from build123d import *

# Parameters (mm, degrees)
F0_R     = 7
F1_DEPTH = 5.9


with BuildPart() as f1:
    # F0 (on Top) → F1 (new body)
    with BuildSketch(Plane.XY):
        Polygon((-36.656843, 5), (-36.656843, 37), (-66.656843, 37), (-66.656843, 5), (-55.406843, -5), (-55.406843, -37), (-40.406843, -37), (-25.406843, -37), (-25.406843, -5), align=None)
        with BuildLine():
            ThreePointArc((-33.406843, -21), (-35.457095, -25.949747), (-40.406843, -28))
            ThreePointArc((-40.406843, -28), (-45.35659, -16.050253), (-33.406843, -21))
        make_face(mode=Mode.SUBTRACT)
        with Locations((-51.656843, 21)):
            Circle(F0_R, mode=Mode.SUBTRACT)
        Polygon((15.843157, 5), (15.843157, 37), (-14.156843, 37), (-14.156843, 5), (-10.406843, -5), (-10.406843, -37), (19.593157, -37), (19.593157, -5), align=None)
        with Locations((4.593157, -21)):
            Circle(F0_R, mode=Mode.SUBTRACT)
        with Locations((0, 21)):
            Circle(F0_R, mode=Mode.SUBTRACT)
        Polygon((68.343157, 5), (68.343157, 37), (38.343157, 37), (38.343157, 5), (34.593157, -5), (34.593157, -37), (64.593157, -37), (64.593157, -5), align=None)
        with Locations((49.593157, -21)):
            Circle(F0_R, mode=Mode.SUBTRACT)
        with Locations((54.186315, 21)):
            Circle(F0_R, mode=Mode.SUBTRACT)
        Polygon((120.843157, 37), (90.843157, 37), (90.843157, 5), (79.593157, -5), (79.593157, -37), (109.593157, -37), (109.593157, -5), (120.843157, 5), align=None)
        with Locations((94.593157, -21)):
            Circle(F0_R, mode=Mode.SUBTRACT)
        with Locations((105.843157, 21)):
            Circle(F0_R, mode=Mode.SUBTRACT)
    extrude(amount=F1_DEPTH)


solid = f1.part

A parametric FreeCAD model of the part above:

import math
import FreeCAD as App
import Part
import Sketcher
from FreeCAD import Vector
Q = App.Units.Quantity


def add_polygon(sketch, points):
    """Adds a closed chain of lines whose ends are joined by coincident constraints."""
    first, n = sketch.GeometryCount, len(points)
    for a, b in zip(points, points[1:] + points[:1]):
        sketch.addGeometry(Part.LineSegment(App.Vector(*a, 0), App.Vector(*b, 0)), False)
    for i in range(n):
        sketch.addConstraint(Sketcher.Constraint("Coincident", first + i, 2, first + (i + 1) % n, 1))

doc = App.newDocument("Part")
body = doc.addObject("PartDesign::Body", "Body")
body.AllowCompound = True

# Sketch on XY plane
sketch1 = body.newObject("Sketcher::SketchObject", "Sketch")
sketch1.AttachmentSupport = (doc.getObject("XY_Plane"), [""])
sketch1.MapMode = "FlatFace"
add_polygon(sketch1, [(-37, 5), (-37, 37), (-67, 37), (-67, 5), (-55, -5), (-55, -37), (-25, -37), (-25, -5)])  # lines 0-7
sketch1.addGeometry(Part.ArcOfCircle(Part.Circle(Vector(-40, -21, 0), Vector(0, 0, 1), 7), math.radians(0), math.radians(270)), False)  # 8
sketch1.addGeometry(Part.ArcOfCircle(Part.Circle(Vector(-40, -21, 0), Vector(0, 0, 1), 7), math.radians(-90), math.radians(0)), False)  # 9
sketch1.addGeometry(Part.Circle(Vector(-52, 21, 0), Vector(0, 0, 1), 7), False)  # 10
add_polygon(sketch1, [(16, 5), (16, 37), (-14, 37), (-14, 5), (-10, -5), (-10, -37), (20, -37), (20, -5)])  # lines 11-18
sketch1.addGeometry(Part.Circle(Vector(5, -21, 0), Vector(0, 0, 1), 7), False)  # 19
sketch1.addGeometry(Part.Circle(Vector(0, 21, 0), Vector(0, 0, 1), 7), False)  # 20
add_polygon(sketch1, [(68, 5), (68, 37), (38, 37), (38, 5), (35, -5), (35, -37), (65, -37), (65, -5)])  # lines 21-28
sketch1.addGeometry(Part.Circle(Vector(50, -21, 0), Vector(0, 0, 1), 7), False)  # 29
sketch1.addGeometry(Part.Circle(Vector(54, 21, 0), Vector(0, 0, 1), 7), False)  # 30
add_polygon(sketch1, [(121, 37), (91, 37), (91, 5), (80, -5), (80, -37), (110, -37), (110, -5), (121, 5)])  # lines 31-38
sketch1.addGeometry(Part.Circle(Vector(95, -21, 0), Vector(0, 0, 1), 7), False)  # 39
sketch1.addGeometry(Part.Circle(Vector(106, 21, 0), Vector(0, 0, 1), 7), False)  # 40
sketch1.addConstraint(Sketcher.Constraint("Tangent", 8, 1, 9, 2))
sketch1.addConstraint(Sketcher.Constraint("Coincident", 9, 1, 8, 2))
sketch1.addConstraint(Sketcher.Constraint("Vertical", 0))
sketch1.addConstraint(Sketcher.Constraint("Horizontal", 1))
sketch1.addConstraint(Sketcher.Constraint("Vertical", 2))
sketch1.addConstraint(Sketcher.Constraint("Vertical", 4))
sketch1.addConstraint(Sketcher.Constraint("Horizontal", 5))
sketch1.addConstraint(Sketcher.Constraint("Vertical", 6))
sketch1.addConstraint(Sketcher.Constraint("Vertical", 11))
sketch1.addConstraint(Sketcher.Constraint("Horizontal", 12))
sketch1.addConstraint(Sketcher.Constraint("Vertical", 13))
sketch1.addConstraint(Sketcher.Constraint("Vertical", 15))
sketch1.addConstraint(Sketcher.Constraint("Horizontal", 16))
sketch1.addConstraint(Sketcher.Constraint("Vertical", 17))
sketch1.addConstraint(Sketcher.Constraint("Vertical", 21))
sketch1.addConstraint(Sketcher.Constraint("Horizontal", 22))
sketch1.addConstraint(Sketcher.Constraint("Vertical", 23))
sketch1.addConstraint(Sketcher.Constraint("Vertical", 25))
sketch1.addConstraint(Sketcher.Constraint("Horizontal", 26))
sketch1.addConstraint(Sketcher.Constraint("Vertical", 27))
sketch1.addConstraint(Sketcher.Constraint("Horizontal", 31))
sketch1.addConstraint(Sketcher.Constraint("Vertical", 32))
sketch1.addConstraint(Sketcher.Constraint("Vertical", 34))
sketch1.addConstraint(Sketcher.Constraint("Horizontal", 35))
sketch1.addConstraint(Sketcher.Constraint("Vertical", 36))
sketch1.addConstraint(Sketcher.Constraint("Vertical", 38))
sketch1.addConstraint(Sketcher.Constraint("Equal", 9, 10))
sketch1.addConstraint(Sketcher.Constraint("Equal", 10, 19))
sketch1.addConstraint(Sketcher.Constraint("Equal", 19, 20))
sketch1.addConstraint(Sketcher.Constraint("Equal", 20, 29))
sketch1.addConstraint(Sketcher.Constraint("Equal", 29, 30))
sketch1.addConstraint(Sketcher.Constraint("Equal", 30, 39))
sketch1.addConstraint(Sketcher.Constraint("Equal", 39, 40))
sketch1.addConstraint(Sketcher.Constraint("PointOnObject", 20, 3, -2))
sketch1.addConstraint(Sketcher.Constraint("Parallel", 3, 7))
sketch1.addConstraint(Sketcher.Constraint("Parallel", 14, 18))
sketch1.addConstraint(Sketcher.Constraint("Parallel", 24, 28))
sketch1.addConstraint(Sketcher.Constraint("Parallel", 33, 37))
sketch1.addConstraint(Sketcher.Constraint("Horizontal", 9, 3, 19, 3))
sketch1.addConstraint(Sketcher.Constraint("Horizontal", 10, 3, 20, 3))
sketch1.addConstraint(Sketcher.Constraint("Horizontal", 19, 3, 29, 3))
sketch1.addConstraint(Sketcher.Constraint("Horizontal", 20, 3, 30, 3))
sketch1.addConstraint(Sketcher.Constraint("Horizontal", 29, 3, 39, 3))
sketch1.addConstraint(Sketcher.Constraint("Horizontal", 30, 3, 40, 3))
sketch1.addConstraint(Sketcher.Constraint("Horizontal", 3, 2, 6, 2))
sketch1.addConstraint(Sketcher.Constraint("Horizontal", 2, 2, 7, 2))
sketch1.addConstraint(Sketcher.Constraint("Horizontal", 39, 3, 8, 1))
sketch1.addConstraint(Sketcher.Constraint("Horizontal", 1, 2, 11, 2))
sketch1.addConstraint(Sketcher.Constraint("Horizontal", 7, 2, 13, 2))
sketch1.addConstraint(Sketcher.Constraint("Horizontal", 6, 2, 14, 2))
sketch1.addConstraint(Sketcher.Constraint("Horizontal", 5, 2, 15, 2))
sketch1.addConstraint(Sketcher.Constraint("Horizontal", 14, 2, 17, 2))
sketch1.addConstraint(Sketcher.Constraint("Horizontal", 13, 2, 18, 2))
sketch1.addConstraint(Sketcher.Constraint("Horizontal", 12, 2, 21, 2))
sketch1.addConstraint(Sketcher.Constraint("Horizontal", 18, 2, 23, 2))
sketch1.addConstraint(Sketcher.Constraint("Horizontal", 17, 2, 24, 2))
sketch1.addConstraint(Sketcher.Constraint("Horizontal", 16, 2, 25, 2))
sketch1.addConstraint(Sketcher.Constraint("Horizontal", 24, 2, 27, 2))
sketch1.addConstraint(Sketcher.Constraint("Horizontal", 23, 2, 28, 2))
sketch1.addConstraint(Sketcher.Constraint("Horizontal", 22, 2, 31, 2))
sketch1.addConstraint(Sketcher.Constraint("Horizontal", 28, 2, 32, 2))
sketch1.addConstraint(Sketcher.Constraint("Horizontal", 27, 2, 33, 2))
sketch1.addConstraint(Sketcher.Constraint("Horizontal", 26, 2, 34, 2))
sketch1.addConstraint(Sketcher.Constraint("Horizontal", 33, 2, 36, 2))
sketch1.addConstraint(Sketcher.Constraint("Horizontal", 32, 2, 37, 2))
sketch1.addConstraint(Sketcher.Constraint("Vertical", 8, 3, 9, 1))
sketch1.addConstraint(Sketcher.Constraint("Equal", 5, 12))
sketch1.addConstraint(Sketcher.Constraint("Equal", 16, 22))
sketch1.addConstraint(Sketcher.Constraint("Equal", 26, 31))
sketch1.addConstraint(Sketcher.Constraint("Equal", 2, 4))
sketch1.addConstraint(Sketcher.Constraint("Equal", 18, 24))
sketch1.addConstraint(Sketcher.Constraint("Equal", 7, 33))
sketch1.addConstraint(Sketcher.Constraint("Diameter", 10, Q("14 mm")))
sketch1.addConstraint(Sketcher.Constraint("DistanceX", 1, 2, 1, 1, Q("30 mm")))
sketch1.addConstraint(Sketcher.Constraint("DistanceY", 0, 1, 0, 2, Q("32 mm")))
sketch1.addConstraint(Sketcher.Constraint("DistanceY", 8, 3, -1, 1, Q("21 mm")))
sketch1.addConstraint(Sketcher.Constraint("DistanceY", -1, 1, 10, 3, Q("21 mm")))
sketch1.addConstraint(Sketcher.Constraint("DistanceY", -1, 1, 0, 2, Q("37 mm")))
sketch1.addConstraint(Sketcher.Constraint("DistanceY", 3, 2, -1, 1, Q("5 mm")))
sketch1.addConstraint(Sketcher.Constraint("DistanceX", 8, 3, 19, 3, Q("45 mm")))
sketch1.addConstraint(Sketcher.Constraint("DistanceX", 19, 3, 29, 3, Q("45 mm")))
sketch1.addConstraint(Sketcher.Constraint("DistanceX", 29, 3, 39, 3, Q("45 mm")))
sketch1.addConstraint(Sketcher.Constraint("DistanceX", 10, 3, 0, 2, Q("15 mm")))
sketch1.addConstraint(Sketcher.Constraint("DistanceX", 3, 2, 9, 3, Q("15 mm")))
sketch1.addConstraint(Sketcher.Constraint("DistanceX", 6, 2, 14, 2, Q("15 mm")))
sketch1.addConstraint(Sketcher.Constraint("DistanceX", 17, 2, 24, 2, Q("15 mm")))
sketch1.addConstraint(Sketcher.Constraint("DistanceX", 31, 2, 40, 3, Q("15 mm")))
sketch1.addConstraint(Sketcher.Constraint("DistanceX", 27, 2, 33, 2, Q("15 mm")))
sketch1.addConstraint(Sketcher.Constraint("DistanceX", 0, 2, 11, 2, Q("52.5 mm")))
sketch1.addConstraint(Sketcher.Constraint("DistanceX", 11, 2, 21, 2, Q("52.5 mm")))
sketch1.addConstraint(Sketcher.Constraint("DistanceX", 29, 3, 30, 3, Q("4.593158 mm")))
sketch1.addConstraint(Sketcher.Constraint("DistanceX", 8, 3, -1, 1, Q("40.406843 mm")))
pad1 = body.newObject("PartDesign::Pad", "Pad")
pad1.Profile = sketch1
pad1.Length = 5.9

doc.recompute()
